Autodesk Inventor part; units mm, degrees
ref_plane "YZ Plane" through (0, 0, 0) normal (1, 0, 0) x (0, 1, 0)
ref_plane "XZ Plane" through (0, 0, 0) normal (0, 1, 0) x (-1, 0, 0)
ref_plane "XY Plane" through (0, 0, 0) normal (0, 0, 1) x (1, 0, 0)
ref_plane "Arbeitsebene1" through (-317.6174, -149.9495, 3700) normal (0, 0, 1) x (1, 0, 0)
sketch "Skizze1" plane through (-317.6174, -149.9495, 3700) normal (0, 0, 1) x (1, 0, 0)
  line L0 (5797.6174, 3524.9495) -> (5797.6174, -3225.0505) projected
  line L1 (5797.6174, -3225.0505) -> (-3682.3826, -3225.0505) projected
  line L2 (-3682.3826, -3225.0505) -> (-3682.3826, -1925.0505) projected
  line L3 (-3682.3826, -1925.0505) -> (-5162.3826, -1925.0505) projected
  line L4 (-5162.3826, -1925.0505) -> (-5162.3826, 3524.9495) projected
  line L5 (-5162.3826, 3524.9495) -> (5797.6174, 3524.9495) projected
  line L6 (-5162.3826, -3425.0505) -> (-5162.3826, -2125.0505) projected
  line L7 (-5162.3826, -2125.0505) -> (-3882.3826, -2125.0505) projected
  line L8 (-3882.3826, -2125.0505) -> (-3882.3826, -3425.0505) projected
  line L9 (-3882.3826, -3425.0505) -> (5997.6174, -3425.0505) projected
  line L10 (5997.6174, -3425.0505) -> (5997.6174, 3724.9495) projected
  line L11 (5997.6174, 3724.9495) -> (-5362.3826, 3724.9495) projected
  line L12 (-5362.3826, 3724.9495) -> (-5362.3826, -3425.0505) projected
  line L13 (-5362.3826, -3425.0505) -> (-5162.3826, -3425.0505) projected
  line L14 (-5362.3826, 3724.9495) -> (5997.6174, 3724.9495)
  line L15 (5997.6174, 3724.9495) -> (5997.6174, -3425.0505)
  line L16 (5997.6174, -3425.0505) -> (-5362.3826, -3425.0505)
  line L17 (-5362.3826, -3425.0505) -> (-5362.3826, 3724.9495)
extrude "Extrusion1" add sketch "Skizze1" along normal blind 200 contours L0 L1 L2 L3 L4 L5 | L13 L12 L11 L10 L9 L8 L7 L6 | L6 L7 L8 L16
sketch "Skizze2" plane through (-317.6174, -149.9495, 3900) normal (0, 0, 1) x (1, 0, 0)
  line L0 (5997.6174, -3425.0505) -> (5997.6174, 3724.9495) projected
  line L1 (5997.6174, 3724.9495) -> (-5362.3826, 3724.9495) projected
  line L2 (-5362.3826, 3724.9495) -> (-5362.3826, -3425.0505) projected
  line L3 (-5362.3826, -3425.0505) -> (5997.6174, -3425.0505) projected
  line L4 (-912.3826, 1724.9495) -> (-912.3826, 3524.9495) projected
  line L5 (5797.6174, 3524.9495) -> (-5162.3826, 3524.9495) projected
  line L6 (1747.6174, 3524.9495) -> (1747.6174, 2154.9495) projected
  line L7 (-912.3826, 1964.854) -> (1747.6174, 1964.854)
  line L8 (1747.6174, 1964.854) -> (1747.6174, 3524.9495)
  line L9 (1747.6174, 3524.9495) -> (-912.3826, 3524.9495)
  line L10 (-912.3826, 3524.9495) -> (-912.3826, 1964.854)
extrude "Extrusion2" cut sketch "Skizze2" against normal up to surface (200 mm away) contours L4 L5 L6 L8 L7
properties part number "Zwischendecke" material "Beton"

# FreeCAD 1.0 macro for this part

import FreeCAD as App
import Part
import Sketcher
from FreeCAD import Vector


def add_polygon(sketch, points):
    """Adds a closed chain of lines whose ends are joined by coincident constraints."""
    first, n = sketch.GeometryCount, len(points)
    for a, b in zip(points, points[1:] + points[:1]):
        sketch.addGeometry(Part.LineSegment(App.Vector(*a, 0), App.Vector(*b, 0)), False)
    for i in range(n):
        sketch.addConstraint(Sketcher.Constraint("Coincident", first + i, 2, first + (i + 1) % n, 1))

doc = App.newDocument("Part")
params = doc.addObject("Spreadsheet::Sheet", "Params")
for row, (alias, value) in enumerate([
    ("sketch1_width", "11360 mm"),
    ("sketch1_height", "7150 mm"),
    ("pad1_length", "200 mm"),
    ("sketch2_width", "2660 mm"),
    ("pocket1_length", "200 mm"),
], start=1):
    params.set(f"A{row}", alias)
    params.set(f"B{row}", "=" + value)
    params.setAlias(f"B{row}", alias)

body = doc.addObject("PartDesign::Body", "Body")

# Sketch on XY plane
sketch1 = doc.addObject("Sketcher::SketchObject", "Sketch")
body.addObject(sketch1)
sketch1.AttachmentSupport = (doc.XY_Plane, [""])
sketch1.MapMode = "FlatFace"
sketch1.AttachmentOffset = App.Placement(Vector(0, 0, 3700), App.Rotation())
add_polygon(sketch1, [(-5680, -3575), (5680, -3575), (5680, 3575), (-5680, 3575)])  # lines 0-3
sketch1.addConstraint([
    Sketcher.Constraint("Horizontal", 0),
    Sketcher.Constraint("Vertical", 1),
    Sketcher.Constraint("Horizontal", 2),
    Sketcher.Constraint("Vertical", 3),
    Sketcher.Constraint("Symmetric", 0, 2, 2, 2, -1, 1),
    Sketcher.Constraint("DistanceX", 0, 1, 0, 2, 11360.0),
    Sketcher.Constraint("DistanceY", 1, 1, 1, 2, 7150.0),
])
sketch1.setExpression("Constraints[9]", "Params.sketch1_width")
sketch1.setExpression("Constraints[10]", "Params.sketch1_height")
pad1 = doc.addObject("PartDesign::Pad", "Pad")
body.addObject(pad1)
pad1.Profile = sketch1
pad1.setExpression("Length", "Params.pad1_length")

# Sketch on XY plane
sketch2 = doc.addObject("Sketcher::SketchObject", "Sketch001")
body.addObject(sketch2)
sketch2.AttachmentSupport = (doc.XY_Plane, [""])
sketch2.MapMode = "FlatFace"
sketch2.AttachmentOffset = App.Placement(Vector(0, 0, 3900), App.Rotation())
add_polygon(sketch2, [(-1230, 3375), (-1230, 1815), (1430, 1815), (1430, 3375)])  # lines 0-3
sketch2.addConstraint([
    Sketcher.Constraint("Vertical", 0),
    Sketcher.Constraint("Horizontal", 1),
    Sketcher.Constraint("Vertical", 2),
    Sketcher.Constraint("Horizontal", 3),
    Sketcher.Constraint("DistanceX", 1, 1, 1, 2, 2660.0),
    Sketcher.Constraint("DistanceX", 0, 2, -1, 1, 1230.0),
    Sketcher.Constraint("DistanceY", -1, 1, 2, 2, 3375.0),
    Sketcher.Constraint("DistanceY", 0, 2, 0, 1, 1560.0955),
])
sketch2.setExpression("Constraints[8]", "Params.sketch2_width")
pocket1 = doc.addObject("PartDesign::Pocket", "Pocket")
body.addObject(pocket1)
pocket1.Profile = sketch2
pocket1.setExpression("Length", "Params.pocket1_length")

doc.recompute()
